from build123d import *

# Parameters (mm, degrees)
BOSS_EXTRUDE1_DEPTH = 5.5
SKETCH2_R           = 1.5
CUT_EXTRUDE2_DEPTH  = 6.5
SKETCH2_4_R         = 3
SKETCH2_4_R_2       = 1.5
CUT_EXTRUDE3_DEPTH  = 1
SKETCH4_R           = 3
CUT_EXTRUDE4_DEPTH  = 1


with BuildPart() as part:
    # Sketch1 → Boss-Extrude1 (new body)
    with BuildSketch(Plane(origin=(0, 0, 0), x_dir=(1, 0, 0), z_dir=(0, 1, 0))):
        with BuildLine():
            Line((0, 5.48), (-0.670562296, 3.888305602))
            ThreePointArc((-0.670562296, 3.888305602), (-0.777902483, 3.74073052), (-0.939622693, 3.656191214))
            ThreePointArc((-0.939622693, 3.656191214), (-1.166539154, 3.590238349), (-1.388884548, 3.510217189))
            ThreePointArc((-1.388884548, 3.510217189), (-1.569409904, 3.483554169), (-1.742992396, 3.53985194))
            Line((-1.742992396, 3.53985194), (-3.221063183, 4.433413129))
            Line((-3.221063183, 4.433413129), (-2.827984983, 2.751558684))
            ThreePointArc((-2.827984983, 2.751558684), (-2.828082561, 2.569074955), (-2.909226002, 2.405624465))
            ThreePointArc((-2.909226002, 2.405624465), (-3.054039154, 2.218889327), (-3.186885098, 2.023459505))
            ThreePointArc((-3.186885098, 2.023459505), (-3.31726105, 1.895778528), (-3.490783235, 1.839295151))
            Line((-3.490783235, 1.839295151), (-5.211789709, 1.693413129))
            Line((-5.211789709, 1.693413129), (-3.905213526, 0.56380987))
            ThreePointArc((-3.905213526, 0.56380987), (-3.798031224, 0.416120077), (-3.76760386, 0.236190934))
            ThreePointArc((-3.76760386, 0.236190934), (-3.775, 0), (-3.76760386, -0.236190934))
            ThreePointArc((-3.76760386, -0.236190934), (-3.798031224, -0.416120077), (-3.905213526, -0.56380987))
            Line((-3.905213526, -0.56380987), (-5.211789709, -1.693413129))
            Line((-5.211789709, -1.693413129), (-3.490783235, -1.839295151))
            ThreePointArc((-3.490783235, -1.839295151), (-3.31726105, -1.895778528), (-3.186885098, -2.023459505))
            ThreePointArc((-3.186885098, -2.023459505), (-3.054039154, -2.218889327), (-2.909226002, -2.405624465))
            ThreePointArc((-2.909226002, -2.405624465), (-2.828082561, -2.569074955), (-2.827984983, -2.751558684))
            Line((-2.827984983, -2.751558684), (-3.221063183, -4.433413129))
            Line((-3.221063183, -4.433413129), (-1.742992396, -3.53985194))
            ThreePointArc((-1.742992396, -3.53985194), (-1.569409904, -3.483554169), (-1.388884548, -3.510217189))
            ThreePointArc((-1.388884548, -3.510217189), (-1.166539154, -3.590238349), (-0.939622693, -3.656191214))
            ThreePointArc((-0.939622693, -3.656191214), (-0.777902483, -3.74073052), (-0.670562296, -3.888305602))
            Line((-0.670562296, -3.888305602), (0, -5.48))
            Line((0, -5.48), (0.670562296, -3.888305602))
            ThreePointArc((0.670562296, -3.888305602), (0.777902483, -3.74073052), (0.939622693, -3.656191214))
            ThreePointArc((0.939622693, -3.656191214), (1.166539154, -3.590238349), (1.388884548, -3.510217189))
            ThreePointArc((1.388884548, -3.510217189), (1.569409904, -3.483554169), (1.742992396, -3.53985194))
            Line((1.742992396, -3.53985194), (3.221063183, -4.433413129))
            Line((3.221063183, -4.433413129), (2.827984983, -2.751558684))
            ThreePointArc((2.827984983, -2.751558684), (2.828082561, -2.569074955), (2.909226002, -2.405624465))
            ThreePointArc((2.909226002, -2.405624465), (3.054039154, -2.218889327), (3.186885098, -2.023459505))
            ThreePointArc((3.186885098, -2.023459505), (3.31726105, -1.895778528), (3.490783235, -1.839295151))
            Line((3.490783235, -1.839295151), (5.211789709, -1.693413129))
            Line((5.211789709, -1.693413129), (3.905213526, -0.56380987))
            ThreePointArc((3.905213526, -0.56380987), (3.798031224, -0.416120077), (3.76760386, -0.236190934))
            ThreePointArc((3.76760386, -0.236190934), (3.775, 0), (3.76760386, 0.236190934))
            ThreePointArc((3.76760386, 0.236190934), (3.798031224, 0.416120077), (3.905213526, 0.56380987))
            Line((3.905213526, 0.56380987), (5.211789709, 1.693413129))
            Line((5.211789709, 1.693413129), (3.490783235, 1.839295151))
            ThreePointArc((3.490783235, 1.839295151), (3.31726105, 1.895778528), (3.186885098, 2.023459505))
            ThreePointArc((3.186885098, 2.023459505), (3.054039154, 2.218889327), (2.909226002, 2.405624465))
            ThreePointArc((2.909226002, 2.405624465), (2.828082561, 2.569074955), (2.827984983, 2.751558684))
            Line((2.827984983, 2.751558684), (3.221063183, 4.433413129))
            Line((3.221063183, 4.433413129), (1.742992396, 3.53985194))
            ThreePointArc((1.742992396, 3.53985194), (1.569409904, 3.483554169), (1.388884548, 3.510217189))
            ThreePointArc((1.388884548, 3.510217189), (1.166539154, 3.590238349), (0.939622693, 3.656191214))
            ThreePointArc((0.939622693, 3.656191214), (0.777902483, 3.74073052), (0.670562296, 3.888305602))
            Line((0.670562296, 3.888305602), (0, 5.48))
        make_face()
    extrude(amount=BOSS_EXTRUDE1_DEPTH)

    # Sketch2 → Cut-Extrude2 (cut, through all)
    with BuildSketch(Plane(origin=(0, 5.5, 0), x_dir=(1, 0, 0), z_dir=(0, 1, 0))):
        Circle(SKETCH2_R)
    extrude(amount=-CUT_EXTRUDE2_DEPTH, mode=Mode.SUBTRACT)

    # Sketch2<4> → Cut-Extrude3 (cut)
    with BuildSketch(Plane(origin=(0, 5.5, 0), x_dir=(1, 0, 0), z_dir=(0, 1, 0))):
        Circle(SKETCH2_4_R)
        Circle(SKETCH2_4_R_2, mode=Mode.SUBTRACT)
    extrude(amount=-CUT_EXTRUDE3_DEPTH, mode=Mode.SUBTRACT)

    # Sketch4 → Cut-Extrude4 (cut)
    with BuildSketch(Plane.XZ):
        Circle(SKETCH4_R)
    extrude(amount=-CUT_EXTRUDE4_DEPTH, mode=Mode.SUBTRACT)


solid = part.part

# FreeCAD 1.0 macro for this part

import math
import FreeCAD as App
import Part
import Sketcher

V = App.Vector

doc = App.newDocument("Part")
params = doc.addObject("Spreadsheet::Sheet", "Params")
for row, (alias, value) in enumerate([
    ("sketch1_radius", "0.4 mm"),
    ("pad1_length", "5.5 mm"),
    ("sketch2_diameter", "3 mm"),
    ("sketch3_diameter", "6 mm"),
    ("sketch3_diameter2", "3 mm"),
    ("pocket2_length", "1 mm"),
    ("sketch4_diameter", "6 mm"),
    ("pocket3_length", "1 mm"),
], start=1):
    params.set(f"A{row}", alias)
    params.set(f"B{row}", "=" + value)
    params.setAlias(f"B{row}", alias)

body = doc.addObject("PartDesign::Body", "Body")

# Sketch on XZ plane
sketch1 = body.newObject("Sketcher::SketchObject", "Sketch")
sketch1.AttachmentSupport = (doc.getObject("XZ_Plane"), [""])
sketch1.MapMode = "FlatFace"
sketch1.addGeometry([
    Part.LineSegment(V(0, -5.48, 0), V(-0.67, -3.89, 0)),  # 0
    Part.ArcOfCircle(Part.Circle(V(-1.04, -4.04, 0), V(0, 0, 1), 0.4), math.radians(23), math.radians(76)),  # 1
    Part.ArcOfCircle(Part.Circle(V(0, 0, 0), V(0, 0, 1), 3.77), math.radians(-111.59), math.radians(-104.41)),  # 2
    Part.ArcOfCircle(Part.Circle(V(-1.54, -3.88, 0), V(0, 0, 1), 0.4), math.radians(68), math.radians(121)),  # 3
    Part.LineSegment(V(-1.74, -3.54, 0), V(-3.22, -4.43, 0)),  # 4
    Part.LineSegment(V(-3.22, -4.43, 0), V(-2.83, -2.75, 0)),  # 5
    Part.ArcOfCircle(Part.Circle(V(-3.22, -2.66, 0), V(0, 0, 1), 0.4), math.radians(-13), math.radians(40)),  # 6
    Part.ArcOfCircle(Part.Circle(V(0, 0, 0), V(0, 0, 1), 3.77), math.radians(-147.59), math.radians(-140.41)),  # 7
    Part.ArcOfCircle(Part.Circle(V(-3.52, -2.24, 0), V(0, 0, 1), 0.4), math.radians(32), math.radians(85)),  # 8
    Part.LineSegment(V(-3.49, -1.84, 0), V(-5.21, -1.69, 0)),  # 9
    Part.LineSegment(V(-5.21, -1.69, 0), V(-3.91, -0.56, 0)),  # 10
    Part.ArcOfCircle(Part.Circle(V(-4.17, -0.26, 0), V(0, 0, 1), 0.4), math.radians(-49), math.radians(4)),  # 11
    Part.ArcOfCircle(Part.Circle(V(0, 0, 0), V(0, 0, 1), 3.78), math.radians(176.41), math.radians(183.59)),  # 12
    Part.ArcOfCircle(Part.Circle(V(-4.17, 0.26, 0), V(0, 0, 1), 0.4), math.radians(-4), math.radians(49)),  # 13
    Part.LineSegment(V(-3.91, 0.56, 0), V(-5.21, 1.69, 0)),  # 14
    Part.LineSegment(V(-5.21, 1.69, 0), V(-3.49, 1.84, 0)),  # 15
    Part.ArcOfCircle(Part.Circle(V(-3.52, 2.24, 0), V(0, 0, 1), 0.4), math.radians(-85), math.radians(-32)),  # 16
    Part.ArcOfCircle(Part.Circle(V(0, 0, 0), V(0, 0, 1), 3.77), math.radians(140.41), math.radians(147.59)),  # 17
    Part.ArcOfCircle(Part.Circle(V(-3.22, 2.66, 0), V(0, 0, 1), 0.4), math.radians(-40), math.radians(13)),  # 18
    Part.LineSegment(V(-2.83, 2.75, 0), V(-3.22, 4.43, 0)),  # 19
    Part.LineSegment(V(-3.22, 4.43, 0), V(-1.74, 3.54, 0)),  # 20
    Part.ArcOfCircle(Part.Circle(V(-1.54, 3.88, 0), V(0, 0, 1), 0.4), math.radians(-121), math.radians(-68)),  # 21
    Part.ArcOfCircle(Part.Circle(V(0, 0, 0), V(0, 0, 1), 3.77), math.radians(104.41), math.radians(111.59)),  # 22
    Part.ArcOfCircle(Part.Circle(V(-1.04, 4.04, 0), V(0, 0, 1), 0.4), math.radians(-76), math.radians(-23)),  # 23
    Part.LineSegment(V(-0.67, 3.89, 0), V(0, 5.48, 0)),  # 24
    Part.LineSegment(V(0, 5.48, 0), V(0.67, 3.89, 0)),  # 25
    Part.ArcOfCircle(Part.Circle(V(1.04, 4.04, 0), V(0, 0, 1), 0.4), math.radians(-157), math.radians(-104)),  # 26
    Part.ArcOfCircle(Part.Circle(V(0, 0, 0), V(0, 0, 1), 3.77), math.radians(68.41), math.radians(75.59)),  # 27
    Part.ArcOfCircle(Part.Circle(V(1.54, 3.88, 0), V(0, 0, 1), 0.4), math.radians(-112), math.radians(-59)),  # 28
    Part.LineSegment(V(1.74, 3.54, 0), V(3.22, 4.43, 0)),  # 29
    Part.LineSegment(V(3.22, 4.43, 0), V(2.83, 2.75, 0)),  # 30
    Part.ArcOfCircle(Part.Circle(V(3.22, 2.66, 0), V(0, 0, 1), 0.4), math.radians(167), math.radians(220)),  # 31
    Part.ArcOfCircle(Part.Circle(V(0, 0, 0), V(0, 0, 1), 3.77), math.radians(32.41), math.radians(39.59)),  # 32
    Part.ArcOfCircle(Part.Circle(V(3.52, 2.24, 0), V(0, 0, 1), 0.4), math.radians(-148), math.radians(-95)),  # 33
    Part.LineSegment(V(3.49, 1.84, 0), V(5.21, 1.69, 0)),  # 34
    Part.LineSegment(V(5.21, 1.69, 0), V(3.91, 0.56, 0)),  # 35
    Part.ArcOfCircle(Part.Circle(V(4.17, 0.26, 0), V(0, 0, 1), 0.4), math.radians(131), math.radians(184)),  # 36
    Part.ArcOfCircle(Part.Circle(V(0, 0, 0), V(0, 0, 1), 3.78), math.radians(-3.59), math.radians(3.59)),  # 37
    Part.ArcOfCircle(Part.Circle(V(4.17, -0.26, 0), V(0, 0, 1), 0.4), math.radians(176), math.radians(229)),  # 38
    Part.LineSegment(V(3.91, -0.56, 0), V(5.21, -1.69, 0)),  # 39
    Part.LineSegment(V(5.21, -1.69, 0), V(3.49, -1.84, 0)),  # 40
    Part.ArcOfCircle(Part.Circle(V(3.52, -2.24, 0), V(0, 0, 1), 0.4), math.radians(95), math.radians(148)),  # 41
    Part.ArcOfCircle(Part.Circle(V(0, 0, 0), V(0, 0, 1), 3.77), math.radians(-39.59), math.radians(-32.41)),  # 42
    Part.ArcOfCircle(Part.Circle(V(3.22, -2.66, 0), V(0, 0, 1), 0.4), math.radians(140), math.radians(193)),  # 43
    Part.LineSegment(V(2.83, -2.75, 0), V(3.22, -4.43, 0)),  # 44
    Part.LineSegment(V(3.22, -4.43, 0), V(1.74, -3.54, 0)),  # 45
    Part.ArcOfCircle(Part.Circle(V(1.54, -3.88, 0), V(0, 0, 1), 0.4), math.radians(59), math.radians(112)),  # 46
    Part.ArcOfCircle(Part.Circle(V(0, 0, 0), V(0, 0, 1), 3.77), math.radians(-75.59), math.radians(-68.41)),  # 47
    Part.ArcOfCircle(Part.Circle(V(1.04, -4.04, 0), V(0, 0, 1), 0.4), math.radians(104), math.radians(157)),  # 48
    Part.LineSegment(V(0.67, -3.89, 0), V(0, -5.48, 0)),  # 49
], False)
sketch1.addConstraint([
    Sketcher.Constraint("Tangent", 0, 2, 1, 1),
    Sketcher.Constraint("Tangent", 1, 2, 2, 2),
    Sketcher.Constraint("Tangent", 2, 1, 3, 1),
    Sketcher.Constraint("Tangent", 3, 2, 4, 1),
    Sketcher.Constraint("Coincident", 4, 2, 5, 1),
    Sketcher.Constraint("Tangent", 5, 2, 6, 1),
    Sketcher.Constraint("Tangent", 6, 2, 7, 2),
    Sketcher.Constraint("Tangent", 7, 1, 8, 1),
    Sketcher.Constraint("Tangent", 8, 2, 9, 1),
    Sketcher.Constraint("Coincident", 9, 2, 10, 1),
    Sketcher.Constraint("Tangent", 10, 2, 11, 1),
    Sketcher.Constraint("Tangent", 11, 2, 12, 2),
    Sketcher.Constraint("Tangent", 12, 1, 13, 1),
    Sketcher.Constraint("Tangent", 13, 2, 14, 1),
    Sketcher.Constraint("Coincident", 14, 2, 15, 1),
    Sketcher.Constraint("Tangent", 15, 2, 16, 1),
    Sketcher.Constraint("Tangent", 16, 2, 17, 2),
    Sketcher.Constraint("Tangent", 17, 1, 18, 1),
    Sketcher.Constraint("Tangent", 18, 2, 19, 1),
    Sketcher.Constraint("Coincident", 19, 2, 20, 1),
    Sketcher.Constraint("Tangent", 20, 2, 21, 1),
    Sketcher.Constraint("Tangent", 21, 2, 22, 2),
    Sketcher.Constraint("Tangent", 22, 1, 23, 1),
    Sketcher.Constraint("Tangent", 23, 2, 24, 1),
    Sketcher.Constraint("Coincident", 24, 2, 25, 1),
    Sketcher.Constraint("Tangent", 25, 2, 26, 1),
    Sketcher.Constraint("Tangent", 26, 2, 27, 2),
    Sketcher.Constraint("Tangent", 27, 1, 28, 1),
    Sketcher.Constraint("Tangent", 28, 2, 29, 1),
    Sketcher.Constraint("Coincident", 29, 2, 30, 1),
    Sketcher.Constraint("Tangent", 30, 2, 31, 1),
    Sketcher.Constraint("Tangent", 31, 2, 32, 2),
    Sketcher.Constraint("Tangent", 32, 1, 33, 1),
    Sketcher.Constraint("Tangent", 33, 2, 34, 1),
    Sketcher.Constraint("Coincident", 34, 2, 35, 1),
    Sketcher.Constraint("Tangent", 35, 2, 36, 1),
    Sketcher.Constraint("Tangent", 36, 2, 37, 2),
    Sketcher.Constraint("Tangent", 37, 1, 38, 1),
    Sketcher.Constraint("Tangent", 38, 2, 39, 1),
    Sketcher.Constraint("Coincident", 39, 2, 40, 1),
    Sketcher.Constraint("Tangent", 40, 2, 41, 1),
    Sketcher.Constraint("Tangent", 41, 2, 42, 2),
    Sketcher.Constraint("Tangent", 42, 1, 43, 1),
    Sketcher.Constraint("Tangent", 43, 2, 44, 1),
    Sketcher.Constraint("Coincident", 44, 2, 45, 1),
    Sketcher.Constraint("Tangent", 45, 2, 46, 1),
    Sketcher.Constraint("Tangent", 46, 2, 47, 2),
    Sketcher.Constraint("Tangent", 47, 1, 48, 1),
    Sketcher.Constraint("Tangent", 48, 2, 49, 1),
    Sketcher.Constraint("Coincident", 49, 2, 0, 1),
    Sketcher.Constraint("Coincident", 2, 3, -1, 1),
    Sketcher.Constraint("Coincident", 7, 3, -1, 1),
    Sketcher.Constraint("Coincident", 12, 3, -1, 1),
    Sketcher.Constraint("Coincident", 17, 3, -1, 1),
    Sketcher.Constraint("Coincident", 22, 3, -1, 1),
    Sketcher.Constraint("Coincident", 27, 3, -1, 1),
    Sketcher.Constraint("Coincident", 32, 3, -1, 1),
    Sketcher.Constraint("Coincident", 37, 3, -1, 1),
    Sketcher.Constraint("Coincident", 42, 3, -1, 1),
    Sketcher.Constraint("Coincident", 47, 3, -1, 1),
    Sketcher.Constraint("Equal", 1, 3),
    Sketcher.Constraint("Equal", 3, 6),
    Sketcher.Constraint("Equal", 2, 7),
    Sketcher.Constraint("Equal", 6, 8),
    Sketcher.Constraint("Equal", 8, 11),
    Sketcher.Constraint("Equal", 7, 12),
    Sketcher.Constraint("Equal", 11, 13),
    Sketcher.Constraint("Equal", 13, 16),
    Sketcher.Constraint("Equal", 12, 17),
    Sketcher.Constraint("Equal", 16, 18),
    Sketcher.Constraint("Equal", 18, 21),
    Sketcher.Constraint("Equal", 17, 22),
    Sketcher.Constraint("Equal", 21, 23),
    Sketcher.Constraint("Equal", 23, 26),
    Sketcher.Constraint("Equal", 22, 27),
    Sketcher.Constraint("Equal", 26, 28),
    Sketcher.Constraint("Equal", 28, 31),
    Sketcher.Constraint("Equal", 27, 32),
    Sketcher.Constraint("Equal", 31, 33),
    Sketcher.Constraint("Equal", 33, 36),
    Sketcher.Constraint("Equal", 32, 37),
    Sketcher.Constraint("Equal", 36, 38),
    Sketcher.Constraint("Equal", 38, 41),
    Sketcher.Constraint("Equal", 37, 42),
    Sketcher.Constraint("Equal", 41, 43),
    Sketcher.Constraint("Equal", 43, 46),
    Sketcher.Constraint("Equal", 42, 47),
    Sketcher.Constraint("Equal", 46, 48),
    Sketcher.Constraint("Symmetric", 0, 2, 25, 2, -1, 1),
    Sketcher.Constraint("Symmetric", 3, 2, 28, 2, -1, 1),
    Sketcher.Constraint("Symmetric", 5, 2, 30, 2, -1, 1),
    Sketcher.Constraint("Symmetric", 8, 2, 33, 2, -1, 1),
    Sketcher.Constraint("Symmetric", 10, 2, 35, 2, -1, 1),
    Sketcher.Constraint("Symmetric", 13, 2, 38, 2, -1, 1),
    Sketcher.Constraint("Symmetric", 15, 2, 40, 2, -1, 1),
    Sketcher.Constraint("Symmetric", 18, 2, 43, 2, -1, 1),
    Sketcher.Constraint("Symmetric", 20, 2, 45, 2, -1, 1),
    Sketcher.Constraint("Symmetric", 23, 2, 48, 2, -1, 1),
    Sketcher.Constraint("Symmetric", 23, 2, 25, 2, -2),
    Sketcher.Constraint("Symmetric", 20, 2, 28, 2, -2),
    Sketcher.Constraint("Symmetric", 18, 2, 30, 2, -2),
    Sketcher.Constraint("Symmetric", 15, 2, 33, 2, -2),
    Sketcher.Constraint("Symmetric", 13, 2, 35, 2, -2),
    Sketcher.Constraint("Equal", 0, 4),
    Sketcher.Constraint("Equal", 4, 5),
    Sketcher.Constraint("Equal", 5, 9),
    Sketcher.Constraint("Equal", 9, 10),
    Sketcher.Constraint("Radius", 1, 0.4),
    Sketcher.Constraint("Radius", 2, 3.775),
    Sketcher.Constraint("DistanceY", -1, 1, 24, 2, 5.48),
    Sketcher.Constraint("Distance", 0, 1.727178),
    Sketcher.Constraint("DistanceX", 3, 3, -1, 1, 1.536051),
    Sketcher.Constraint("DistanceX", 6, 3, -1, 1, 3.217488),
    Sketcher.Constraint("DistanceX", 8, 3, -1, 1, 3.524568),
    Sketcher.Constraint("DistanceX", 11, 3, -1, 1, 4.16682),
])
sketch1.setExpression("Constraints[107]", "Params.sketch1_radius")
pad1 = body.newObject("PartDesign::Pad", "Pad")
pad1.Profile = sketch1
pad1.setExpression("Length", "Params.pad1_length")
pad1.Reversed = True

# Sketch on XZ plane
sketch2 = body.newObject("Sketcher::SketchObject", "Sketch001")
sketch2.AttachmentSupport = (doc.getObject("XZ_Plane"), [""])
sketch2.MapMode = "FlatFace"
sketch2.AttachmentOffset = App.Placement(V(0, 0, -5.5), App.Rotation())
sketch2.addGeometry(Part.Circle(V(0, 0, 0), V(0, 0, 1), 1.5), False)
sketch2.addConstraint([
    Sketcher.Constraint("Coincident", 0, 3, -1, 1),
    Sketcher.Constraint("Diameter", 0, 3.0),
])
sketch2.setExpression("Constraints[1]", "Params.sketch2_diameter")
pocket1 = body.newObject("PartDesign::Pocket", "Pocket")
pocket1.Profile = sketch2
pocket1.Type = "ThroughAll"
pocket1.Reversed = True

# Sketch on XZ plane
sketch3 = body.newObject("Sketcher::SketchObject", "Sketch002")
sketch3.AttachmentSupport = (doc.getObject("XZ_Plane"), [""])
sketch3.MapMode = "FlatFace"
sketch3.AttachmentOffset = App.Placement(V(0, 0, -5.5), App.Rotation())
sketch3.addGeometry([
    Part.Circle(V(0, 0, 0), V(0, 0, 1), 3),
    Part.Circle(V(0, 0, 0), V(0, 0, 1), 1.5),
], False)
sketch3.addConstraint([
    Sketcher.Constraint("Coincident", 0, 3, -1, 1),
    Sketcher.Constraint("Coincident", 1, 3, -1, 1),
    Sketcher.Constraint("Diameter", 0, 6.0),
    Sketcher.Constraint("Diameter", 1, 3.0),
])
sketch3.setExpression("Constraints[2]", "Params.sketch3_diameter")
sketch3.setExpression("Constraints[3]", "Params.sketch3_diameter2")
pocket2 = body.newObject("PartDesign::Pocket", "Pocket001")
pocket2.Profile = sketch3
pocket2.setExpression("Length", "Params.pocket2_length")
pocket2.Reversed = True

# Sketch on XZ plane
sketch4 = body.newObject("Sketcher::SketchObject", "Sketch003")
sketch4.AttachmentSupport = (doc.getObject("XZ_Plane"), [""])
sketch4.MapMode = "FlatFace"
sketch4.addGeometry(Part.Circle(V(0, 0, 0), V(0, 0, 1), 3), False)
sketch4.addConstraint([
    Sketcher.Constraint("Coincident", 0, 3, -1, 1),
    Sketcher.Constraint("Diameter", 0, 6.0),
])
sketch4.setExpression("Constraints[1]", "Params.sketch4_diameter")
pocket3 = body.newObject("PartDesign::Pocket", "Pocket002")
pocket3.Profile = sketch4
pocket3.setExpression("Length", "Params.pocket3_length")

doc.recompute()
